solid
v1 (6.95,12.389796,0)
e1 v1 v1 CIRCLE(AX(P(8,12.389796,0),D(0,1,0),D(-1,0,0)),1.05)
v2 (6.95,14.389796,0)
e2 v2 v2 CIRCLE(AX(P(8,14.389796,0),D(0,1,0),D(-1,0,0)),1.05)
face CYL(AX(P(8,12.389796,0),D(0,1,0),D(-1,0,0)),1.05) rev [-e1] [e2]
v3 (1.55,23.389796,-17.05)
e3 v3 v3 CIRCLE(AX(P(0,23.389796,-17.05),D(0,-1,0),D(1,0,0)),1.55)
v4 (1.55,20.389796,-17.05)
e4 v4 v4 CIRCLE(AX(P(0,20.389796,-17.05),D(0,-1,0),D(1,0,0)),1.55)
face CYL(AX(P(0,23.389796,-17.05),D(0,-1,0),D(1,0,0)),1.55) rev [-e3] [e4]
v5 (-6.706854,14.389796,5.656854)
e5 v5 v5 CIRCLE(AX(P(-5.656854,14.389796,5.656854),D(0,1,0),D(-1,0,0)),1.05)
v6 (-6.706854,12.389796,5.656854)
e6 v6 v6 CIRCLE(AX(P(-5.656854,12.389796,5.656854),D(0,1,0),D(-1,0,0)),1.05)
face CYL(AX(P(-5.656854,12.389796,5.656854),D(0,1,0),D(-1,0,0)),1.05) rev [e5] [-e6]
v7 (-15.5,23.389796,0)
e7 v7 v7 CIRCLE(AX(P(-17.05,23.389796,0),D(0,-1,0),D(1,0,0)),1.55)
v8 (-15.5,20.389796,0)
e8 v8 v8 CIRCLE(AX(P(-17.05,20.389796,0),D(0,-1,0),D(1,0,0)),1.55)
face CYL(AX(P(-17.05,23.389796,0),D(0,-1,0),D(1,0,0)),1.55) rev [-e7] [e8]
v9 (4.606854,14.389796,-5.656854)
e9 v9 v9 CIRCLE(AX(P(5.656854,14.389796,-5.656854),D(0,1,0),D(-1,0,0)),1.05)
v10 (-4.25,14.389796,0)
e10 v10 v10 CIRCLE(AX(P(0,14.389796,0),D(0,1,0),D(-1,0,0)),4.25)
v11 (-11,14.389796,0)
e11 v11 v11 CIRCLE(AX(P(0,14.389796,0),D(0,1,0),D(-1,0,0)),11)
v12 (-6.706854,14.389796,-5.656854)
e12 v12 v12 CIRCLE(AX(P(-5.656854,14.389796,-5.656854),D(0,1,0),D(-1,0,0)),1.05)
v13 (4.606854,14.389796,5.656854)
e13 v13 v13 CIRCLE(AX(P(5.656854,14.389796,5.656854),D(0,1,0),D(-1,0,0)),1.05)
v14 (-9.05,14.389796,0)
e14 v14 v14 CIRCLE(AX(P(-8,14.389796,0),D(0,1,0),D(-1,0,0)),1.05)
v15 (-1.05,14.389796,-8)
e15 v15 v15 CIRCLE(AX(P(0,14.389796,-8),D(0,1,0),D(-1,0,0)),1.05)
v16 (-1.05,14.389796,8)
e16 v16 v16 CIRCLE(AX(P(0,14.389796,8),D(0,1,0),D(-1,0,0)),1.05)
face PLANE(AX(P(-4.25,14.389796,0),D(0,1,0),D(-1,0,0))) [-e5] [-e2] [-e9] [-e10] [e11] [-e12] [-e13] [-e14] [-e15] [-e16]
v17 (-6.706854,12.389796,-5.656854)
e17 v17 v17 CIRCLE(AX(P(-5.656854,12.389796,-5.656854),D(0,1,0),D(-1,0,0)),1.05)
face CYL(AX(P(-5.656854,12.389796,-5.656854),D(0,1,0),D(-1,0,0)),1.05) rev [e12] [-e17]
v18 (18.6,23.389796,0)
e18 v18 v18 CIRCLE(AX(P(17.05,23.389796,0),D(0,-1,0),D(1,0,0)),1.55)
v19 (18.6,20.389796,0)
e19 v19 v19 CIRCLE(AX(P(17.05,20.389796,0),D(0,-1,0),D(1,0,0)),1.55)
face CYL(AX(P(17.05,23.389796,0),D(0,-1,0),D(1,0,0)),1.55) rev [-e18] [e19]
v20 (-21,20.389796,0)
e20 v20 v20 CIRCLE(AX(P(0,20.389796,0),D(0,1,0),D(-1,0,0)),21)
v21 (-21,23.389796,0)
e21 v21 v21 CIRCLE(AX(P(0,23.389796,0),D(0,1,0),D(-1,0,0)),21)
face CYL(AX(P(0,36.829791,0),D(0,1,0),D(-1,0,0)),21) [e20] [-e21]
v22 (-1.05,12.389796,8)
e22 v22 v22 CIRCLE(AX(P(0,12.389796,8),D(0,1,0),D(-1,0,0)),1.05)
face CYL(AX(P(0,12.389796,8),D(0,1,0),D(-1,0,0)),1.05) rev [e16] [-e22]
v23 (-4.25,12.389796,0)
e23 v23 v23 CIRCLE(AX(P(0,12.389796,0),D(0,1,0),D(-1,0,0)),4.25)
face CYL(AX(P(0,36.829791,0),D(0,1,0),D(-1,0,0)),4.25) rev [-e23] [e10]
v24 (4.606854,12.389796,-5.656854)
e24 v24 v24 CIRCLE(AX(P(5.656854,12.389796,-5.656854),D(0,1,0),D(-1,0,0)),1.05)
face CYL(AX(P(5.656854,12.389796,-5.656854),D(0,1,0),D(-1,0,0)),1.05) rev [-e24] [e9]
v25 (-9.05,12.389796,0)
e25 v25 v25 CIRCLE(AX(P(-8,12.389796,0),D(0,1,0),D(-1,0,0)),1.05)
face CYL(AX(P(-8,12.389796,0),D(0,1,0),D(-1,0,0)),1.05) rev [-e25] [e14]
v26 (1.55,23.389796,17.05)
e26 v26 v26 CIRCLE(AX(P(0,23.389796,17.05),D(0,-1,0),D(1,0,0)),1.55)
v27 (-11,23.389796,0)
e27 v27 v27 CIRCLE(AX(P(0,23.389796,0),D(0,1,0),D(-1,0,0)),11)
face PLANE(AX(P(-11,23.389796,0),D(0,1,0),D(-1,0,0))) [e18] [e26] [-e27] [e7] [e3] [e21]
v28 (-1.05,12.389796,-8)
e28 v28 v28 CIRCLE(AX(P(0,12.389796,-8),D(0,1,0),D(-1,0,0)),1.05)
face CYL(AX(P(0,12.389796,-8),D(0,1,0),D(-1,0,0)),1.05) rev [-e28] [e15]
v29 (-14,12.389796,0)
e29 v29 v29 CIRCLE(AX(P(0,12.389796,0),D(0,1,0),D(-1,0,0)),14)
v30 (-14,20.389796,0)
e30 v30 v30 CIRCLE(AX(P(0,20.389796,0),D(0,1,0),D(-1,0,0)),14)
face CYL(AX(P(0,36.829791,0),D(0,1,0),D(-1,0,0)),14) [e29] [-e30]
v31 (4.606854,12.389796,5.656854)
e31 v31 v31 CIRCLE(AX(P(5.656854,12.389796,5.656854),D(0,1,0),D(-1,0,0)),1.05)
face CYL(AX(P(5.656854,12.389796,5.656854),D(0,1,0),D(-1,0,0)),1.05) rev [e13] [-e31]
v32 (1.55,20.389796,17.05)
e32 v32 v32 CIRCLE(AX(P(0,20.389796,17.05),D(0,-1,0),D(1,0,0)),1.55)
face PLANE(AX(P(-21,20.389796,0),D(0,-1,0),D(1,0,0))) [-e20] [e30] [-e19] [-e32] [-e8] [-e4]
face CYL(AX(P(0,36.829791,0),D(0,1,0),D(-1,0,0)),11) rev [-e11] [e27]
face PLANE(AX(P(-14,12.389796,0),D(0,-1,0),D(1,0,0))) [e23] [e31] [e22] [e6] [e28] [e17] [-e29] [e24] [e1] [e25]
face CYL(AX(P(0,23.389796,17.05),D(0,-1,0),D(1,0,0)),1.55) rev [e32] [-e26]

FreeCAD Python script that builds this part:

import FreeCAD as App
import Part
import Sketcher

V = App.Vector
Q = App.Units.Quantity

doc = App.newDocument("Part")
params = doc.addObject("Spreadsheet::Sheet", "Params")
for row, (alias, value) in enumerate([
    ("sketch1_width", "7 mm"),
    ("sketch1_width2", "10 mm"),
    ("sketch1_height", "3 mm"),
    ("sketch1_height2", "8 mm"),
    ("sketch1_height3", "2 mm"),
    ("revolution_angle", "360 deg"),
    ("sketch2_diameter", "2.1 mm"),
    ("sketch3_diameter", "3.1 mm"),
], start=1):
    params.set(f"A{row}", alias)
    params.set(f"B{row}", "=" + value)
    params.setAlias(f"B{row}", alias)

body = doc.addObject("PartDesign::Body", "Body")

# Sketch on XY plane
sketch1 = doc.addObject("Sketcher::SketchObject", "Sketch")
body.addObject(sketch1)
sketch1.AttachmentSupport = (doc.XY_Plane, [""])
sketch1.MapMode = "FlatFace"
sketch1.addGeometry([
    Part.LineSegment(V(-21, 23.4, 0), V(-21, 20.4, 0)),  # 0
    Part.LineSegment(V(-21, 20.4, 0), V(-14, 20.4, 0)),  # 1
    Part.LineSegment(V(-14, 20.4, 0), V(-14, 12.4, 0)),  # 2
    Part.LineSegment(V(-14, 12.4, 0), V(-4.2, 12.4, 0)),  # 3
    Part.LineSegment(V(-4.2, 12.4, 0), V(-4.2, 14.4, 0)),  # 4
    Part.LineSegment(V(-4.2, 14.4, 0), V(-11, 14.4, 0)),  # 5
    Part.LineSegment(V(-11, 14.4, 0), V(-11, 23.4, 0)),  # 6
    Part.LineSegment(V(-11, 23.4, 0), V(-21, 23.4, 0)),  # 7
], False)
sketch1.addConstraint([
    Sketcher.Constraint("Coincident", 0, 2, 1, 1),
    Sketcher.Constraint("Coincident", 1, 2, 2, 1),
    Sketcher.Constraint("Coincident", 2, 2, 3, 1),
    Sketcher.Constraint("Coincident", 3, 2, 4, 1),
    Sketcher.Constraint("Coincident", 4, 2, 5, 1),
    Sketcher.Constraint("Coincident", 5, 2, 6, 1),
    Sketcher.Constraint("Coincident", 6, 2, 7, 1),
    Sketcher.Constraint("Coincident", 7, 2, 0, 1),
    Sketcher.Constraint("Vertical", 0),
    Sketcher.Constraint("Horizontal", 1),
    Sketcher.Constraint("Vertical", 2),
    Sketcher.Constraint("Horizontal", 3),
    Sketcher.Constraint("Vertical", 4),
    Sketcher.Constraint("Horizontal", 5),
    Sketcher.Constraint("Vertical", 6),
    Sketcher.Constraint("Horizontal", 7),
    Sketcher.Constraint("DistanceX", 1, 1, 1, 2, Q("7 mm")),
    Sketcher.Constraint("DistanceX", 7, 2, 7, 1, Q("10 mm")),
    Sketcher.Constraint("DistanceY", 0, 2, 0, 1, Q("3 mm")),
    Sketcher.Constraint("DistanceY", 2, 2, 2, 1, Q("8 mm")),
    Sketcher.Constraint("DistanceY", 4, 1, 4, 2, Q("2 mm")),
    Sketcher.Constraint("DistanceX", 0, 2, -1, 1, Q("21 mm")),
    Sketcher.Constraint("DistanceX", 3, 1, 3, 2, Q("9.75 mm")),
    Sketcher.Constraint("DistanceY", -1, 1, 0, 2, Q("20.389796 mm")),
])
sketch1.setExpression("Constraints[16]", "Params.sketch1_width")
sketch1.setExpression("Constraints[17]", "Params.sketch1_width2")
sketch1.setExpression("Constraints[18]", "Params.sketch1_height")
sketch1.setExpression("Constraints[19]", "Params.sketch1_height2")
sketch1.setExpression("Constraints[20]", "Params.sketch1_height3")
revolution = doc.addObject("PartDesign::Revolution", "Revolution")
body.addObject(revolution)
revolution.Profile = sketch1
revolution.ReferenceAxis = (sketch1, ["V_Axis"])
revolution.setExpression("Angle", "Params.revolution_angle")

# Sketch on XZ plane
sketch2 = doc.addObject("Sketcher::SketchObject", "Sketch001")
body.addObject(sketch2)
sketch2.AttachmentSupport = (doc.XZ_Plane, [""])
sketch2.MapMode = "FlatFace"
sketch2.AttachmentOffset = App.Placement(V(0, 0, -14.389796), App.Rotation())
sketch2.addGeometry([
    Part.Circle(V(0, -8, 0), V(0, 0, 1), 1.1),  # 0
    Part.Circle(V(5.7, -5.7, 0), V(0, 0, 1), 1.1),  # 1
    Part.Circle(V(8, 0, 0), V(0, 0, 1), 1.1),  # 2
    Part.Circle(V(5.7, 5.7, 0), V(0, 0, 1), 1.1),  # 3
    Part.Circle(V(0, 8, 0), V(0, 0, 1), 1.1),  # 4
    Part.Circle(V(-5.7, 5.7, 0), V(0, 0, 1), 1.1),  # 5
    Part.Circle(V(-8, 0, 0), V(0, 0, 1), 1.1),  # 6
    Part.Circle(V(-5.7, -5.7, 0), V(0, 0, 1), 1.1),  # 7
], False)
sketch2.addConstraint([
    Sketcher.Constraint("Equal", 0, 1),
    Sketcher.Constraint("Equal", 1, 2),
    Sketcher.Constraint("Equal", 2, 3),
    Sketcher.Constraint("Equal", 3, 4),
    Sketcher.Constraint("Equal", 4, 5),
    Sketcher.Constraint("Equal", 5, 6),
    Sketcher.Constraint("Equal", 6, 7),
    Sketcher.Constraint("Symmetric", 0, 3, 4, 3, -1, 1),
    Sketcher.Constraint("Symmetric", 1, 3, 5, 3, -1, 1),
    Sketcher.Constraint("Symmetric", 2, 3, 6, 3, -1, 1),
    Sketcher.Constraint("Symmetric", 3, 3, 7, 3, -1, 1),
    Sketcher.Constraint("Symmetric", 3, 3, 5, 3, -2),
    Sketcher.Constraint("PointOnObject", 0, 3, -2),
    Sketcher.Constraint("PointOnObject", 2, 3, -1),
    Sketcher.Constraint("Diameter", 0, Q("2.1 mm")),
    Sketcher.Constraint("DistanceY", 0, 3, -1, 1, Q("8 mm")),
    Sketcher.Constraint("DistanceX", -1, 1, 2, 3, Q("8 mm")),
    Sketcher.Constraint("DistanceY", 1, 3, 3, 3, Q("11.313708 mm")),
    Sketcher.Constraint("DistanceX", 5, 3, 3, 3, Q("11.313708 mm")),
])
sketch2.setExpression("Constraints[14]", "Params.sketch2_diameter")
pocket1 = doc.addObject("PartDesign::Pocket", "Pocket")
body.addObject(pocket1)
pocket1.Profile = sketch2
pocket1.Type = "ThroughAll"
pocket1.Reversed = True

# Sketch on XZ plane
sketch3 = doc.addObject("Sketcher::SketchObject", "Sketch002")
body.addObject(sketch3)
sketch3.AttachmentSupport = (doc.XZ_Plane, [""])
sketch3.MapMode = "FlatFace"
sketch3.AttachmentOffset = App.Placement(V(0, 0, -20.389796), App.Rotation())
sketch3.addGeometry([
    Part.Circle(V(0, 17.1, 0), V(0, 0, 1), 1.6),
    Part.Circle(V(17.1, 0, 0), V(0, 0, 1), 1.6),
    Part.Circle(V(0, -17.1, 0), V(0, 0, 1), 1.6),
    Part.Circle(V(-17.1, 0, 0), V(0, 0, 1), 1.6),
], False)
sketch3.addConstraint([
    Sketcher.Constraint("Equal", 0, 1),
    Sketcher.Constraint("Equal", 1, 2),
    Sketcher.Constraint("Equal", 2, 3),
    Sketcher.Constraint("Symmetric", 0, 3, 2, 3, -1, 1),
    Sketcher.Constraint("Symmetric", 1, 3, 3, 3, -1, 1),
    Sketcher.Constraint("PointOnObject", 0, 3, -2),
    Sketcher.Constraint("PointOnObject", 1, 3, -1),
    Sketcher.Constraint("Diameter", 0, Q("3.1 mm")),
    Sketcher.Constraint("DistanceY", 2, 3, 0, 3, Q("34.1 mm")),
    Sketcher.Constraint("DistanceX", 3, 3, 1, 3, Q("34.1 mm")),
])
sketch3.setExpression("Constraints[7]", "Params.sketch3_diameter")
pocket2 = doc.addObject("PartDesign::Pocket", "Pocket001")
body.addObject(pocket2)
pocket2.Profile = sketch3
pocket2.Type = "ThroughAll"

doc.recompute()
